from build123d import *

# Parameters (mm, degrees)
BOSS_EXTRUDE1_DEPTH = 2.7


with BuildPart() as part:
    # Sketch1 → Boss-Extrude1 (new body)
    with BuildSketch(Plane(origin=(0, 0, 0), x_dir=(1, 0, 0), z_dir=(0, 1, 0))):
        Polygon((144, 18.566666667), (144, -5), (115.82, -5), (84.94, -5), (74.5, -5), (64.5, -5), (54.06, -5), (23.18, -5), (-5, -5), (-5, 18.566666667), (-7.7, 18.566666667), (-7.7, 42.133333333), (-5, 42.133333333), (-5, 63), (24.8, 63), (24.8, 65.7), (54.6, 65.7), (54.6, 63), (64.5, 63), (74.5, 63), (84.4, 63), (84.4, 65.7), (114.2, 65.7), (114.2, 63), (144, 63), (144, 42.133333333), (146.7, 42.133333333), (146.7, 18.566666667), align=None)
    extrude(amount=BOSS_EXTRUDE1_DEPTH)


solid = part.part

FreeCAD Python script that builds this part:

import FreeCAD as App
import Part
import Sketcher

V = App.Vector
Q = App.Units.Quantity


def add_polygon(sketch, points):
    """Adds a closed chain of lines whose ends are joined by coincident constraints."""
    first, n = sketch.GeometryCount, len(points)
    for a, b in zip(points, points[1:] + points[:1]):
        sketch.addGeometry(Part.LineSegment(App.Vector(*a, 0), App.Vector(*b, 0)), False)
    for i in range(n):
        sketch.addConstraint(Sketcher.Constraint("Coincident", first + i, 2, first + (i + 1) % n, 1))

doc = App.newDocument("Part")
body = doc.addObject("PartDesign::Body", "Body")

# Sketch on XZ plane
sketch1 = doc.addObject("Sketcher::SketchObject", "Sketch")
body.addObject(sketch1)
sketch1.AttachmentSupport = (doc.XZ_Plane, [""])
sketch1.MapMode = "FlatFace"
add_polygon(sketch1, [(144, 5), (144, -18.566667), (146.7, -18.566667), (146.7, -42.133333), (144, -42.133333), (144, -63), (114.2, -63), (114.2, -65.7), (84.4, -65.7), (84.4, -63), (54.6, -63), (54.6, -65.7), (24.8, -65.7), (24.8, -63), (-5, -63), (-5, -42.133333), (-7.7, -42.133333), (-7.7, -18.566667), (-5, -18.566667), (-5, 5)])  # lines 0-19
sketch1.addConstraint([
    Sketcher.Constraint("Vertical", 0),
    Sketcher.Constraint("Horizontal", 1),
    Sketcher.Constraint("Vertical", 2),
    Sketcher.Constraint("Horizontal", 3),
    Sketcher.Constraint("Vertical", 4),
    Sketcher.Constraint("Horizontal", 5),
    Sketcher.Constraint("Vertical", 6),
    Sketcher.Constraint("Horizontal", 7),
    Sketcher.Constraint("Vertical", 8),
    Sketcher.Constraint("Horizontal", 9),
    Sketcher.Constraint("Vertical", 10),
    Sketcher.Constraint("Horizontal", 11),
    Sketcher.Constraint("Vertical", 12),
    Sketcher.Constraint("Horizontal", 13),
    Sketcher.Constraint("Vertical", 14),
    Sketcher.Constraint("Horizontal", 15),
    Sketcher.Constraint("Vertical", 16),
    Sketcher.Constraint("Horizontal", 17),
    Sketcher.Constraint("Vertical", 18),
    Sketcher.Constraint("Horizontal", 19),
    Sketcher.Constraint("Horizontal", 5, 2, 8, 2),
    Sketcher.Constraint("Horizontal", 7, 2, 10, 2),
    Sketcher.Constraint("Horizontal", 9, 2, 12, 2),
    Sketcher.Constraint("Horizontal", 3, 2, 14, 2),
    Sketcher.Constraint("Horizontal", 1, 2, 16, 2),
    Sketcher.Constraint("Vertical", 0, 2, 3, 2),
    Sketcher.Constraint("Vertical", 14, 2, 17, 2),
    Sketcher.Constraint("Equal", 5, 7),
    Sketcher.Constraint("Equal", 7, 9),
    Sketcher.Constraint("Equal", 9, 11),
    Sketcher.Constraint("Equal", 11, 13),
    Sketcher.Constraint("Equal", 3, 15),
    Sketcher.Constraint("Equal", 0, 2),
    Sketcher.Constraint("Equal", 17, 6),
    Sketcher.Constraint("DistanceX", 19, 1, 19, 2, Q("149 mm")),
    Sketcher.Constraint("DistanceX", 1, 1, 1, 2, Q("2.7 mm")),
    Sketcher.Constraint("DistanceX", -1, 1, 0, 2, Q("144 mm")),
    Sketcher.Constraint("DistanceY", 4, 2, -1, 1, Q("63 mm")),
    Sketcher.Constraint("DistanceY", -1, 1, 18, 2, Q("5 mm")),
    Sketcher.Constraint("DistanceY", 0, 2, 0, 1, Q("23.566667 mm")),
])
pad1 = doc.addObject("PartDesign::Pad", "Pad")
body.addObject(pad1)
pad1.Profile = sketch1
pad1.Length = 2.7
pad1.Reversed = True

doc.recompute()
